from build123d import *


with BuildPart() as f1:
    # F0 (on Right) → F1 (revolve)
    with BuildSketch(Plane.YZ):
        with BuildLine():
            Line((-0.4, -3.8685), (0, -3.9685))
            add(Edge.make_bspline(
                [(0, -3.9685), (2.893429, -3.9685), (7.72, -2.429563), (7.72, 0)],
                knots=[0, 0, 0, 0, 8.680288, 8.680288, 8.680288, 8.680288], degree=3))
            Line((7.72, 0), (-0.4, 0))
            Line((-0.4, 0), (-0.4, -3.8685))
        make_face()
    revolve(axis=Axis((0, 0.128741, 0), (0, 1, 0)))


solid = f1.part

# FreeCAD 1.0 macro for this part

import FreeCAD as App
import Part
import Sketcher

V = App.Vector

doc = App.newDocument("Part")
body = doc.addObject("PartDesign::Body", "Body")

# Sketch on YZ plane
sketch1 = body.newObject("Sketcher::SketchObject", "Sketch")
sketch1.AttachmentSupport = (doc.getObject("YZ_Plane"), [""])
sketch1.MapMode = "FlatFace"
sketch1.addGeometry(Part.LineSegment(V(-0.4, -3.8685, 0), V(0, -3.9685, 0)), False)
sketch1.addGeometry(Part.BSplineCurve([V(0, -3.9685, 0), V(2.893429, -3.9685, 0), V(7.72, -2.429563, 0), V(7.72, 0, 0)], [4, 4], [0, 8.680288], False, 3, [1, 1, 1, 1], False), False)
sketch1.addGeometry(Part.LineSegment(V(7.72, 0, 0), V(-0.4, 0, 0)), False)
sketch1.addGeometry(Part.LineSegment(V(-0.4, 0, 0), V(-0.4, -3.8685, 0)), False)
sketch1.addConstraint(Sketcher.Constraint("Block", 1))
sketch1.addConstraint(Sketcher.Constraint("Coincident", 0, 2, 1, 1))
sketch1.addConstraint(Sketcher.Constraint("Coincident", 1, 2, 2, 1))
sketch1.addConstraint(Sketcher.Constraint("Coincident", 2, 2, 3, 1))
sketch1.addConstraint(Sketcher.Constraint("Coincident", 3, 2, 0, 1))
sketch1.addConstraint(Sketcher.Constraint("Horizontal", 2))
sketch1.addConstraint(Sketcher.Constraint("Vertical", 3))
sketch1.addConstraint(Sketcher.Constraint("DistanceX", 2, 2, 2, 1, 8.12))
sketch1.addConstraint(Sketcher.Constraint("DistanceY", 0, 2, 3, 2, 0.1))
revolution = body.newObject("PartDesign::Revolution", "Revolution")
revolution.Profile = sketch1
revolution.ReferenceAxis = (sketch1, ["H_Axis"])
revolution.Angle = 360

doc.recompute()
